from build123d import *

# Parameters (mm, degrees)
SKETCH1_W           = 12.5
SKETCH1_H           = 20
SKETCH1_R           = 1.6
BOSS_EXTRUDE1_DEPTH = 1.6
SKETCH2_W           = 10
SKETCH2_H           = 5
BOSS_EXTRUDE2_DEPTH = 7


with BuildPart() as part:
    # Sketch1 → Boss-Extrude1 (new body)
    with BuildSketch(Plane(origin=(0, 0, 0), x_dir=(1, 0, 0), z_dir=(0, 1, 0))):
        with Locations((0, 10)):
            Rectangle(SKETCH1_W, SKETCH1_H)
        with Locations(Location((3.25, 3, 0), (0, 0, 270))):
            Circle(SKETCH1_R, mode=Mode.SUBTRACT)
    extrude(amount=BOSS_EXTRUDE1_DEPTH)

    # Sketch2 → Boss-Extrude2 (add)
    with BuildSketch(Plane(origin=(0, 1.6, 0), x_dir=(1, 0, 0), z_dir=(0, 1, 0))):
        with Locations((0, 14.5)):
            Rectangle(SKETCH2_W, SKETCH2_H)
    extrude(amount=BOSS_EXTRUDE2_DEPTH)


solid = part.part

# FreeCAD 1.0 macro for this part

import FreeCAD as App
import Part
import Sketcher

V = App.Vector
Q = App.Units.Quantity

doc = App.newDocument("Part")
body = doc.addObject("PartDesign::Body", "Body")

# Sketch on XZ plane
sketch1 = body.newObject("Sketcher::SketchObject", "Sketch")
sketch1.AttachmentSupport = (doc.getObject("XZ_Plane"), [""])
sketch1.MapMode = "FlatFace"
sketch1.addGeometry([
    Part.LineSegment(V(-6.25, -20, 0), V(-6.25, 0, 0)),  # 0
    Part.LineSegment(V(-6.25, 0, 0), V(6.25, 0, 0)),  # 1
    Part.LineSegment(V(6.25, 0, 0), V(6.25, -20, 0)),  # 2
    Part.LineSegment(V(6.25, -20, 0), V(-6.25, -20, 0)),  # 3
    Part.Circle(V(3.25, -3, 0), V(0, 0, 1), 1.6),  # 4
], False)
sketch1.addConstraint([
    Sketcher.Constraint("Coincident", 0, 2, 1, 1),
    Sketcher.Constraint("Coincident", 1, 2, 2, 1),
    Sketcher.Constraint("Coincident", 2, 2, 3, 1),
    Sketcher.Constraint("Coincident", 3, 2, 0, 1),
    Sketcher.Constraint("Vertical", 0),
    Sketcher.Constraint("Horizontal", 1),
    Sketcher.Constraint("Vertical", 2),
    Sketcher.Constraint("Horizontal", 3),
    Sketcher.Constraint("Symmetric", 0, 2, 1, 2, -1, 1),
    Sketcher.Constraint("Diameter", 4, Q("3.2 mm")),
    Sketcher.Constraint("DistanceY", 0, 1, 0, 2, Q("20 mm")),
    Sketcher.Constraint("DistanceX", 1, 1, 1, 2, Q("12.5 mm")),
    Sketcher.Constraint("DistanceY", 4, 3, -1, 1, Q("3 mm")),
    Sketcher.Constraint("DistanceX", 4, 3, 1, 2, Q("3 mm")),
])
pad1 = body.newObject("PartDesign::Pad", "Pad")
pad1.Profile = sketch1
pad1.Length = 1.6
pad1.Reversed = True

# Sketch on XZ plane
sketch2 = body.newObject("Sketcher::SketchObject", "Sketch001")
sketch2.AttachmentSupport = (doc.getObject("XZ_Plane"), [""])
sketch2.MapMode = "FlatFace"
sketch2.AttachmentOffset = App.Placement(V(0, 0, -1.6), App.Rotation())
sketch2.addGeometry([
    Part.LineSegment(V(-5, -17, 0), V(-5, -12, 0)),
    Part.LineSegment(V(-5, -12, 0), V(5, -12, 0)),
    Part.LineSegment(V(5, -12, 0), V(5, -17, 0)),
    Part.LineSegment(V(5, -17, 0), V(-5, -17, 0)),
], False)
sketch2.addConstraint([
    Sketcher.Constraint("Coincident", 0, 2, 1, 1),
    Sketcher.Constraint("Coincident", 1, 2, 2, 1),
    Sketcher.Constraint("Coincident", 2, 2, 3, 1),
    Sketcher.Constraint("Coincident", 3, 2, 0, 1),
    Sketcher.Constraint("Vertical", 0),
    Sketcher.Constraint("Horizontal", 1),
    Sketcher.Constraint("Vertical", 2),
    Sketcher.Constraint("Horizontal", 3),
    Sketcher.Constraint("DistanceX", 1, 1, 1, 2, Q("10 mm")),
    Sketcher.Constraint("DistanceY", 0, 1, 0, 2, Q("5 mm")),
    Sketcher.Constraint("DistanceX", 0, 2, -1, 1, Q("5 mm")),
    Sketcher.Constraint("DistanceY", 0, 2, -1, 1, Q("12 mm")),
])
pad2 = body.newObject("PartDesign::Pad", "Pad001")
pad2.Profile = sketch2
pad2.Length = 7
pad2.Reversed = True

doc.recompute()
